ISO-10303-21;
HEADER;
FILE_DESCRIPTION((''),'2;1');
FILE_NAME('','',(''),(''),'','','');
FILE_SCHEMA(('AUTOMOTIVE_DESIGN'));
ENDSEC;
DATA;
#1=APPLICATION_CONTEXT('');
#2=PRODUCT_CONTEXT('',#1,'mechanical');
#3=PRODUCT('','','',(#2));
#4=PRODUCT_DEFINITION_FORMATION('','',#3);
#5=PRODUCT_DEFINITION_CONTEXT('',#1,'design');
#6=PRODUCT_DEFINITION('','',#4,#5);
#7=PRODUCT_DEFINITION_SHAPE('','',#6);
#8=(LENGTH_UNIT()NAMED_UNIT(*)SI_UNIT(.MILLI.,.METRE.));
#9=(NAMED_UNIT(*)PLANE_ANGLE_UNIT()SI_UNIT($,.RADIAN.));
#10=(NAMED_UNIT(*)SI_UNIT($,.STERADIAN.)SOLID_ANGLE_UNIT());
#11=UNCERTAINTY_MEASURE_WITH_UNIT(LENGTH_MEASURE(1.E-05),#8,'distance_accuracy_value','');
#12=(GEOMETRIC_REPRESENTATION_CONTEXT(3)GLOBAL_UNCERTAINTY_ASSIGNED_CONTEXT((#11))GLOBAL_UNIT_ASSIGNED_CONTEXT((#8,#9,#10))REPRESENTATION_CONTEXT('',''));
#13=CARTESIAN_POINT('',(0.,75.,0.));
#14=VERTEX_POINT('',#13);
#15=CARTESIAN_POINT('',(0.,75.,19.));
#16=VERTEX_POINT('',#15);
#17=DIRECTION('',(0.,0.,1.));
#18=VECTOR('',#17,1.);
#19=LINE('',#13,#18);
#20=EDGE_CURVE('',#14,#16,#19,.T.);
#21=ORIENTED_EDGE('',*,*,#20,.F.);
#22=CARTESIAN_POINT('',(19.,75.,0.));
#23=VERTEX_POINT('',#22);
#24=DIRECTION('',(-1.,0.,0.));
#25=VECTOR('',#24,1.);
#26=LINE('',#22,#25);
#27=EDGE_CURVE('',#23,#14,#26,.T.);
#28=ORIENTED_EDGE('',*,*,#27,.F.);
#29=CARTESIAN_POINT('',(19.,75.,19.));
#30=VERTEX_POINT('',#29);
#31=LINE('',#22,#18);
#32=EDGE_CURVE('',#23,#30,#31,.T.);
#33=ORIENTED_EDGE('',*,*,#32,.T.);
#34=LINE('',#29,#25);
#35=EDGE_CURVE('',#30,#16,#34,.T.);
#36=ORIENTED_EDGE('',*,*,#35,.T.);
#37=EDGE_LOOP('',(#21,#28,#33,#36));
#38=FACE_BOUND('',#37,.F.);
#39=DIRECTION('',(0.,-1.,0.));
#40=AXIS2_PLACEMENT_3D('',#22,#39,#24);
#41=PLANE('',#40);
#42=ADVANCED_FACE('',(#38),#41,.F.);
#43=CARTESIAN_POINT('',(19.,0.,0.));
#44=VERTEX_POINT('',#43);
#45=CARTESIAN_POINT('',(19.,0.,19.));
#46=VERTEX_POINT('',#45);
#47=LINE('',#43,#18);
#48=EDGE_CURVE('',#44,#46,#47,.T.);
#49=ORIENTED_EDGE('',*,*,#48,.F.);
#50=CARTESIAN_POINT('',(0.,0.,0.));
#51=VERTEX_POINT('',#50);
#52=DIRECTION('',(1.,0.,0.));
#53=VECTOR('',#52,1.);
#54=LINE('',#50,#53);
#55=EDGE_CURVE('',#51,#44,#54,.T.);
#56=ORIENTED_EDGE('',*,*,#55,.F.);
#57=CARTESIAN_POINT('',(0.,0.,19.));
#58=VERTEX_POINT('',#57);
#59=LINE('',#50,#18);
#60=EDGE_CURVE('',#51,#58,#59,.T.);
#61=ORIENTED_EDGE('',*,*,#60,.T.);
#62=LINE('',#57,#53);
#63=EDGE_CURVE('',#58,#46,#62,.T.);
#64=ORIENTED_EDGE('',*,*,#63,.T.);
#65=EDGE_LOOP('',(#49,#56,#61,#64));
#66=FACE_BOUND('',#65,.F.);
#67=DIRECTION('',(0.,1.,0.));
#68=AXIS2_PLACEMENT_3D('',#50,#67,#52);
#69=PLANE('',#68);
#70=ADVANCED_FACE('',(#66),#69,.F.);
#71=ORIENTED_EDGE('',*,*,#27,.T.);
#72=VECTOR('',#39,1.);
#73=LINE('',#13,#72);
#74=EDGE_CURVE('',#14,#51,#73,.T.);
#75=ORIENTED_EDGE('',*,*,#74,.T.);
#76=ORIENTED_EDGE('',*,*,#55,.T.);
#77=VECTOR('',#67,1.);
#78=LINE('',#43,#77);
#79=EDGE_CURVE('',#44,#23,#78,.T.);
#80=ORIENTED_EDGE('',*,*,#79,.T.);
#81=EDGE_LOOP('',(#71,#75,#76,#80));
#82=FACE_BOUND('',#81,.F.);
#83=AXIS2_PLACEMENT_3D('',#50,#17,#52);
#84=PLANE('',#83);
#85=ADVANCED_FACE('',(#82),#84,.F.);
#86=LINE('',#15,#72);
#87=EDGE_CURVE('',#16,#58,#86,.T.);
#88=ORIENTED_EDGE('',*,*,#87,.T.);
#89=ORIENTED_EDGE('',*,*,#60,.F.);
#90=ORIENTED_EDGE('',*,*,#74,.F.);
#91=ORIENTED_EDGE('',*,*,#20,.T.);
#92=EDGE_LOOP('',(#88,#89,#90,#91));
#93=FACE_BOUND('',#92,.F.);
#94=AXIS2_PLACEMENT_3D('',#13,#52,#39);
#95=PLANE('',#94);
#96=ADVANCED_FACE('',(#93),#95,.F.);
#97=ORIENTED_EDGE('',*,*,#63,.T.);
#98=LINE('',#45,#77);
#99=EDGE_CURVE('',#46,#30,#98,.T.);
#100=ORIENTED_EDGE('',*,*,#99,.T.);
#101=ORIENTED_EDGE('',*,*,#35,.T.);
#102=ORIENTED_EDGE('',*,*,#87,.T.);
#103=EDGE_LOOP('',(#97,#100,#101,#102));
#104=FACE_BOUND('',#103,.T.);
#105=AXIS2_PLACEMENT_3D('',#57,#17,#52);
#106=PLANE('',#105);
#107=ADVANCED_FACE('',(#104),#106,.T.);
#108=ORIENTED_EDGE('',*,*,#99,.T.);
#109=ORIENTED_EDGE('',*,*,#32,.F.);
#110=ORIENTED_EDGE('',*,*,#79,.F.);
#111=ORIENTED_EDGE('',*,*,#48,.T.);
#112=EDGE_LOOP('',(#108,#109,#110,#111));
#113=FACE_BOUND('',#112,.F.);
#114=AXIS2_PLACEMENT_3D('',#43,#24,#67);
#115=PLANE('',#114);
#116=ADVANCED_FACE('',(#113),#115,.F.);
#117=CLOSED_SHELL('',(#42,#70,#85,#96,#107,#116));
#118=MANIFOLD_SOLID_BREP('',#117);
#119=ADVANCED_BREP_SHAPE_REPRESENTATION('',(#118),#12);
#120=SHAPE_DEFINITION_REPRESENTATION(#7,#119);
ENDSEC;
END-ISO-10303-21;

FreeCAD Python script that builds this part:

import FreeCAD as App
import Part
import Sketcher

V = App.Vector

doc = App.newDocument("Part")
params = doc.addObject("Spreadsheet::Sheet", "Params")
for row, (alias, value) in enumerate([
    ("sketch1_width", "19 mm"),
    ("sketch1_height", "75 mm"),
    ("pad1_length", "19 mm"),
], start=1):
    params.set(f"A{row}", alias)
    params.set(f"B{row}", "=" + value)
    params.setAlias(f"B{row}", alias)

body = doc.addObject("PartDesign::Body", "Body")

sketch1 = doc.addObject("Sketcher::SketchObject", "Sketch")
body.addObject(sketch1)
sketch1.AttachmentSupport = (doc.XY_Plane, [""])
sketch1.MapMode = "FlatFace"
sketch1.addGeometry(Part.LineSegment(V(0, 75, 0), V(0, 0, 0)), False)
sketch1.addGeometry(Part.LineSegment(V(0, 0, 0), V(19, 0, 0)), False)
sketch1.addGeometry(Part.LineSegment(V(19, 0, 0), V(19, 75, 0)), False)
sketch1.addGeometry(Part.LineSegment(V(19, 75, 0), V(0, 75, 0)), False)
sketch1.addConstraint(Sketcher.Constraint("Coincident", 0, 2, 1, 1))
sketch1.addConstraint(Sketcher.Constraint("Coincident", 1, 2, 2, 1))
sketch1.addConstraint(Sketcher.Constraint("Coincident", 2, 2, 3, 1))
sketch1.addConstraint(Sketcher.Constraint("Coincident", 3, 2, 0, 1))
sketch1.addConstraint(Sketcher.Constraint("Vertical", 0))
sketch1.addConstraint(Sketcher.Constraint("Horizontal", 1))
sketch1.addConstraint(Sketcher.Constraint("Vertical", 2))
sketch1.addConstraint(Sketcher.Constraint("Horizontal", 3))
sketch1.addConstraint(Sketcher.Constraint("Coincident", 0, 2, -1, 1))
sketch1.addConstraint(Sketcher.Constraint("DistanceX", 1, 1, 1, 2, 19.0))
sketch1.addConstraint(Sketcher.Constraint("DistanceY", 0, 2, 0, 1, 75.0))
sketch1.setExpression("Constraints[9]", "Params.sketch1_width")
sketch1.setExpression("Constraints[10]", "Params.sketch1_height")
pad1 = doc.addObject("PartDesign::Pad", "Pad")
body.addObject(pad1)
pad1.Profile = sketch1
pad1.setExpression("Length", "Params.pad1_length")

doc.recompute()
